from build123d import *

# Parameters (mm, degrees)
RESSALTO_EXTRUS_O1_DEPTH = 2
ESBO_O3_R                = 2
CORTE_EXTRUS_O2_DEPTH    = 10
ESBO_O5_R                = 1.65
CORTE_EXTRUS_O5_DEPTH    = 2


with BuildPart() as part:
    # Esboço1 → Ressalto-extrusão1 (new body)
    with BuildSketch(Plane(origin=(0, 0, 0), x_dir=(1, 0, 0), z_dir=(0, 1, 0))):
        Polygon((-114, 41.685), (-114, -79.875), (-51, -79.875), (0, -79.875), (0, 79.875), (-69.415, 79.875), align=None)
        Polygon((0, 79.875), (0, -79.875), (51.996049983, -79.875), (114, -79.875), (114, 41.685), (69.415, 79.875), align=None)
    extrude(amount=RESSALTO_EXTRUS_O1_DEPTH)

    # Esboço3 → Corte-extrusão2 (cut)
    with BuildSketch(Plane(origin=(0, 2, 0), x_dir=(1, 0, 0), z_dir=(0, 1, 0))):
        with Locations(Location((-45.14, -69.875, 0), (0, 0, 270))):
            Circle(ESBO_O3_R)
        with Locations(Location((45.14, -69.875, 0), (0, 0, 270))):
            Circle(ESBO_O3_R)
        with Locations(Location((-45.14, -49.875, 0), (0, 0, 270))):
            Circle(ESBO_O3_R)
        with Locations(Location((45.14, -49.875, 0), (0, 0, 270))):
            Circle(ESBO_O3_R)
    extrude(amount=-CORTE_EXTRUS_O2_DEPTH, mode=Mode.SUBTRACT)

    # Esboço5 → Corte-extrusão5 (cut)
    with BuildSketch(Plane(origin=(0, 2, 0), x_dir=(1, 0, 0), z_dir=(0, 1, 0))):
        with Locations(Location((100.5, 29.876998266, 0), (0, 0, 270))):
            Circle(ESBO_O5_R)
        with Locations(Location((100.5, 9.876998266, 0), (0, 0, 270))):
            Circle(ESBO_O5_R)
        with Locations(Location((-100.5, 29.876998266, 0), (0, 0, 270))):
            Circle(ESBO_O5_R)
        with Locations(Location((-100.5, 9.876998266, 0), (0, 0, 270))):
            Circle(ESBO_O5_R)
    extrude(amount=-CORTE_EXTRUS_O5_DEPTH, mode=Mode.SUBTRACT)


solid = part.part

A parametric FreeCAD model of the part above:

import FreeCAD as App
import Part
import Sketcher
from FreeCAD import Vector


def add_polygon(sketch, points):
    """Adds a closed chain of lines whose ends are joined by coincident constraints."""
    first, n = sketch.GeometryCount, len(points)
    for a, b in zip(points, points[1:] + points[:1]):
        sketch.addGeometry(Part.LineSegment(App.Vector(*a, 0), App.Vector(*b, 0)), False)
    for i in range(n):
        sketch.addConstraint(Sketcher.Constraint("Coincident", first + i, 2, first + (i + 1) % n, 1))

doc = App.newDocument("Part")
body = doc.addObject("PartDesign::Body", "Body")

# Sketch on XZ plane
sketch1 = doc.addObject("Sketcher::SketchObject", "Sketch")
body.addObject(sketch1)
sketch1.AttachmentSupport = (doc.XZ_Plane, [""])
sketch1.MapMode = "FlatFace"
add_polygon(sketch1, [(-114, -42), (-114, 80), (114, 80), (114, -42), (69, -80), (-69, -80)])  # lines 0-5
sketch1.addConstraint([
    Sketcher.Constraint("Vertical", 0),
    Sketcher.Constraint("Horizontal", 1),
    Sketcher.Constraint("Vertical", 2),
    Sketcher.Constraint("Horizontal", 4),
    Sketcher.Constraint("Symmetric", 2, 2, 5, 2, -2),
    Sketcher.Constraint("Equal", 3, 5),
    Sketcher.Constraint("DistanceX", 1, 1, 1, 2, 228.0),
    Sketcher.Constraint("DistanceX", 4, 2, 4, 1, 138.83),
    Sketcher.Constraint("DistanceY", 0, 1, 0, 2, 121.56),
    Sketcher.Constraint("DistanceY", 3, 2, 2, 2, 38.19),
    Sketcher.Constraint("DistanceY", -1, 1, 0, 2, 79.875),
])
pad1 = doc.addObject("PartDesign::Pad", "Pad")
body.addObject(pad1)
pad1.Profile = sketch1
pad1.Length = 2
pad1.Reversed = True

# Sketch on XZ plane
sketch2 = doc.addObject("Sketcher::SketchObject", "Sketch001")
body.addObject(sketch2)
sketch2.AttachmentSupport = (doc.XZ_Plane, [""])
sketch2.MapMode = "FlatFace"
sketch2.AttachmentOffset = App.Placement(Vector(0, 0, -2), App.Rotation())
sketch2.addGeometry([
    Part.Circle(Vector(-45.1, 69.9, 0), Vector(0, 0, 1), 2),
    Part.Circle(Vector(45.1, 69.9, 0), Vector(0, 0, 1), 2),
    Part.Circle(Vector(-45.1, 49.9, 0), Vector(0, 0, 1), 2),
    Part.Circle(Vector(45.1, 49.9, 0), Vector(0, 0, 1), 2),
], False)
sketch2.addConstraint([
    Sketcher.Constraint("Equal", 0, 1),
    Sketcher.Constraint("Equal", 1, 2),
    Sketcher.Constraint("Equal", 2, 3),
    Sketcher.Constraint("Symmetric", 0, 3, 1, 3, -2),
    Sketcher.Constraint("Symmetric", 2, 3, 3, 3, -2),
    Sketcher.Constraint("Vertical", 0, 3, 2, 3),
    Sketcher.Constraint("Diameter", 0, 4.0),
    Sketcher.Constraint("DistanceY", 2, 3, 0, 3, 20.0),
    Sketcher.Constraint("DistanceX", 0, 3, -1, 1, 45.14),
    Sketcher.Constraint("DistanceY", -1, 1, 0, 3, 69.875),
])
pocket1 = doc.addObject("PartDesign::Pocket", "Pocket")
body.addObject(pocket1)
pocket1.Profile = sketch2
pocket1.Length = 10
pocket1.Reversed = True

# Sketch on XZ plane
sketch3 = doc.addObject("Sketcher::SketchObject", "Sketch002")
body.addObject(sketch3)
sketch3.AttachmentSupport = (doc.XZ_Plane, [""])
sketch3.MapMode = "FlatFace"
sketch3.AttachmentOffset = App.Placement(Vector(0, 0, -2), App.Rotation())
sketch3.addGeometry([
    Part.Circle(Vector(100.5, -29.9, 0), Vector(0, 0, 1), 1.6),
    Part.Circle(Vector(100.5, -9.9, 0), Vector(0, 0, 1), 1.6),
    Part.Circle(Vector(-100.5, -29.9, 0), Vector(0, 0, 1), 1.6),
    Part.Circle(Vector(-100.5, -9.9, 0), Vector(0, 0, 1), 1.6),
], False)
sketch3.addConstraint([
    Sketcher.Constraint("Equal", 0, 1),
    Sketcher.Constraint("Equal", 1, 2),
    Sketcher.Constraint("Equal", 2, 3),
    Sketcher.Constraint("Symmetric", 0, 3, 2, 3, -2),
    Sketcher.Constraint("Symmetric", 1, 3, 3, 3, -2),
    Sketcher.Constraint("Vertical", 0, 3, 1, 3),
    Sketcher.Constraint("Diameter", 0, 3.3),
    Sketcher.Constraint("DistanceY", 0, 3, 1, 3, 20.0),
    Sketcher.Constraint("DistanceX", 2, 3, 0, 3, 201.0),
    Sketcher.Constraint("DistanceY", 0, 3, -1, 1, 29.876998),
])
pocket2 = doc.addObject("PartDesign::Pocket", "Pocket001")
body.addObject(pocket2)
pocket2.Profile = sketch3
pocket2.Length = 2
pocket2.Reversed = True

doc.recompute()
